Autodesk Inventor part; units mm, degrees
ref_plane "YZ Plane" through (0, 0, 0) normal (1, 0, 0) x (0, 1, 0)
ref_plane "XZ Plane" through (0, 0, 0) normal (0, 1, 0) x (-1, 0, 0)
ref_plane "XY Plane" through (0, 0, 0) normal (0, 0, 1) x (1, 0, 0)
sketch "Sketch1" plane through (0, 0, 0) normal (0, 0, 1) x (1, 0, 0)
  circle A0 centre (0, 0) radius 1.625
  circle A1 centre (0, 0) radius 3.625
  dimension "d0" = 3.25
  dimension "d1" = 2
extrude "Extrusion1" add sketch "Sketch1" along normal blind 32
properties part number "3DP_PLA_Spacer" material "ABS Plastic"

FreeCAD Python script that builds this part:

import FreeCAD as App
import Part
import Sketcher
Q = App.Units.Quantity

doc = App.newDocument("Part")
body = doc.addObject("PartDesign::Body", "Body")

# Sketch on XY plane
sketch1 = doc.addObject("Sketcher::SketchObject", "Sketch")
body.addObject(sketch1)
sketch1.AttachmentSupport = (doc.XY_Plane, [""])
sketch1.MapMode = "FlatFace"
sketch1.addGeometry([
    Part.Circle(App.Vector(0, 0, 0), App.Vector(0, 0, 1), 3.6),
    Part.Circle(App.Vector(0, 0, 0), App.Vector(0, 0, 1), 1.6),
], False)
sketch1.addConstraint([
    Sketcher.Constraint("Coincident", 0, 3, -1, 1),
    Sketcher.Constraint("Coincident", 1, 3, -1, 1),
    Sketcher.Constraint("Diameter", 1, Q("3.25 mm")),
    Sketcher.Constraint("Diameter", 0, Q("7.25 mm")),
])
pad1 = doc.addObject("PartDesign::Pad", "Pad")
body.addObject(pad1)
pad1.Profile = sketch1
pad1.Length = 32

doc.recompute()
